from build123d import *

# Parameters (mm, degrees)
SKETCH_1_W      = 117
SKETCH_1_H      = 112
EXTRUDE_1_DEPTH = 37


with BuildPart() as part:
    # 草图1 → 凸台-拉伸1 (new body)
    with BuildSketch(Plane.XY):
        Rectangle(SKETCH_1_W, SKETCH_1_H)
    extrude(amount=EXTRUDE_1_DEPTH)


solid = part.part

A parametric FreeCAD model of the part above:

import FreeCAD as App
import Part
import Sketcher

V = App.Vector


def add_polygon(sketch, points):
    """Adds a closed chain of lines whose ends are joined by coincident constraints."""
    first, n = sketch.GeometryCount, len(points)
    for a, b in zip(points, points[1:] + points[:1]):
        sketch.addGeometry(Part.LineSegment(App.Vector(*a, 0), App.Vector(*b, 0)), False)
    for i in range(n):
        sketch.addConstraint(Sketcher.Constraint("Coincident", first + i, 2, first + (i + 1) % n, 1))

doc = App.newDocument("Part")
body = doc.addObject("PartDesign::Body", "Body")

# Sketch on XY plane
sketch1 = body.newObject("Sketcher::SketchObject", "Sketch")
sketch1.AttachmentSupport = (doc.getObject("XY_Plane"), [""])
sketch1.MapMode = "FlatFace"
add_polygon(sketch1, [(-58, 56), (-58, -56), (58, -56), (58, 56)])  # lines 0-3
sketch1.addConstraint([
    Sketcher.Constraint("Vertical", 0),
    Sketcher.Constraint("Horizontal", 1),
    Sketcher.Constraint("Vertical", 2),
    Sketcher.Constraint("Horizontal", 3),
    Sketcher.Constraint("Symmetric", 0, 2, 2, 2, -1, 1),
    Sketcher.Constraint("DistanceX", 1, 1, 1, 2, 117.0),
    Sketcher.Constraint("DistanceY", 0, 2, 0, 1, 112.0),
])
pad1 = body.newObject("PartDesign::Pad", "Pad")
pad1.Profile = sketch1
pad1.Length = 37

doc.recompute()
